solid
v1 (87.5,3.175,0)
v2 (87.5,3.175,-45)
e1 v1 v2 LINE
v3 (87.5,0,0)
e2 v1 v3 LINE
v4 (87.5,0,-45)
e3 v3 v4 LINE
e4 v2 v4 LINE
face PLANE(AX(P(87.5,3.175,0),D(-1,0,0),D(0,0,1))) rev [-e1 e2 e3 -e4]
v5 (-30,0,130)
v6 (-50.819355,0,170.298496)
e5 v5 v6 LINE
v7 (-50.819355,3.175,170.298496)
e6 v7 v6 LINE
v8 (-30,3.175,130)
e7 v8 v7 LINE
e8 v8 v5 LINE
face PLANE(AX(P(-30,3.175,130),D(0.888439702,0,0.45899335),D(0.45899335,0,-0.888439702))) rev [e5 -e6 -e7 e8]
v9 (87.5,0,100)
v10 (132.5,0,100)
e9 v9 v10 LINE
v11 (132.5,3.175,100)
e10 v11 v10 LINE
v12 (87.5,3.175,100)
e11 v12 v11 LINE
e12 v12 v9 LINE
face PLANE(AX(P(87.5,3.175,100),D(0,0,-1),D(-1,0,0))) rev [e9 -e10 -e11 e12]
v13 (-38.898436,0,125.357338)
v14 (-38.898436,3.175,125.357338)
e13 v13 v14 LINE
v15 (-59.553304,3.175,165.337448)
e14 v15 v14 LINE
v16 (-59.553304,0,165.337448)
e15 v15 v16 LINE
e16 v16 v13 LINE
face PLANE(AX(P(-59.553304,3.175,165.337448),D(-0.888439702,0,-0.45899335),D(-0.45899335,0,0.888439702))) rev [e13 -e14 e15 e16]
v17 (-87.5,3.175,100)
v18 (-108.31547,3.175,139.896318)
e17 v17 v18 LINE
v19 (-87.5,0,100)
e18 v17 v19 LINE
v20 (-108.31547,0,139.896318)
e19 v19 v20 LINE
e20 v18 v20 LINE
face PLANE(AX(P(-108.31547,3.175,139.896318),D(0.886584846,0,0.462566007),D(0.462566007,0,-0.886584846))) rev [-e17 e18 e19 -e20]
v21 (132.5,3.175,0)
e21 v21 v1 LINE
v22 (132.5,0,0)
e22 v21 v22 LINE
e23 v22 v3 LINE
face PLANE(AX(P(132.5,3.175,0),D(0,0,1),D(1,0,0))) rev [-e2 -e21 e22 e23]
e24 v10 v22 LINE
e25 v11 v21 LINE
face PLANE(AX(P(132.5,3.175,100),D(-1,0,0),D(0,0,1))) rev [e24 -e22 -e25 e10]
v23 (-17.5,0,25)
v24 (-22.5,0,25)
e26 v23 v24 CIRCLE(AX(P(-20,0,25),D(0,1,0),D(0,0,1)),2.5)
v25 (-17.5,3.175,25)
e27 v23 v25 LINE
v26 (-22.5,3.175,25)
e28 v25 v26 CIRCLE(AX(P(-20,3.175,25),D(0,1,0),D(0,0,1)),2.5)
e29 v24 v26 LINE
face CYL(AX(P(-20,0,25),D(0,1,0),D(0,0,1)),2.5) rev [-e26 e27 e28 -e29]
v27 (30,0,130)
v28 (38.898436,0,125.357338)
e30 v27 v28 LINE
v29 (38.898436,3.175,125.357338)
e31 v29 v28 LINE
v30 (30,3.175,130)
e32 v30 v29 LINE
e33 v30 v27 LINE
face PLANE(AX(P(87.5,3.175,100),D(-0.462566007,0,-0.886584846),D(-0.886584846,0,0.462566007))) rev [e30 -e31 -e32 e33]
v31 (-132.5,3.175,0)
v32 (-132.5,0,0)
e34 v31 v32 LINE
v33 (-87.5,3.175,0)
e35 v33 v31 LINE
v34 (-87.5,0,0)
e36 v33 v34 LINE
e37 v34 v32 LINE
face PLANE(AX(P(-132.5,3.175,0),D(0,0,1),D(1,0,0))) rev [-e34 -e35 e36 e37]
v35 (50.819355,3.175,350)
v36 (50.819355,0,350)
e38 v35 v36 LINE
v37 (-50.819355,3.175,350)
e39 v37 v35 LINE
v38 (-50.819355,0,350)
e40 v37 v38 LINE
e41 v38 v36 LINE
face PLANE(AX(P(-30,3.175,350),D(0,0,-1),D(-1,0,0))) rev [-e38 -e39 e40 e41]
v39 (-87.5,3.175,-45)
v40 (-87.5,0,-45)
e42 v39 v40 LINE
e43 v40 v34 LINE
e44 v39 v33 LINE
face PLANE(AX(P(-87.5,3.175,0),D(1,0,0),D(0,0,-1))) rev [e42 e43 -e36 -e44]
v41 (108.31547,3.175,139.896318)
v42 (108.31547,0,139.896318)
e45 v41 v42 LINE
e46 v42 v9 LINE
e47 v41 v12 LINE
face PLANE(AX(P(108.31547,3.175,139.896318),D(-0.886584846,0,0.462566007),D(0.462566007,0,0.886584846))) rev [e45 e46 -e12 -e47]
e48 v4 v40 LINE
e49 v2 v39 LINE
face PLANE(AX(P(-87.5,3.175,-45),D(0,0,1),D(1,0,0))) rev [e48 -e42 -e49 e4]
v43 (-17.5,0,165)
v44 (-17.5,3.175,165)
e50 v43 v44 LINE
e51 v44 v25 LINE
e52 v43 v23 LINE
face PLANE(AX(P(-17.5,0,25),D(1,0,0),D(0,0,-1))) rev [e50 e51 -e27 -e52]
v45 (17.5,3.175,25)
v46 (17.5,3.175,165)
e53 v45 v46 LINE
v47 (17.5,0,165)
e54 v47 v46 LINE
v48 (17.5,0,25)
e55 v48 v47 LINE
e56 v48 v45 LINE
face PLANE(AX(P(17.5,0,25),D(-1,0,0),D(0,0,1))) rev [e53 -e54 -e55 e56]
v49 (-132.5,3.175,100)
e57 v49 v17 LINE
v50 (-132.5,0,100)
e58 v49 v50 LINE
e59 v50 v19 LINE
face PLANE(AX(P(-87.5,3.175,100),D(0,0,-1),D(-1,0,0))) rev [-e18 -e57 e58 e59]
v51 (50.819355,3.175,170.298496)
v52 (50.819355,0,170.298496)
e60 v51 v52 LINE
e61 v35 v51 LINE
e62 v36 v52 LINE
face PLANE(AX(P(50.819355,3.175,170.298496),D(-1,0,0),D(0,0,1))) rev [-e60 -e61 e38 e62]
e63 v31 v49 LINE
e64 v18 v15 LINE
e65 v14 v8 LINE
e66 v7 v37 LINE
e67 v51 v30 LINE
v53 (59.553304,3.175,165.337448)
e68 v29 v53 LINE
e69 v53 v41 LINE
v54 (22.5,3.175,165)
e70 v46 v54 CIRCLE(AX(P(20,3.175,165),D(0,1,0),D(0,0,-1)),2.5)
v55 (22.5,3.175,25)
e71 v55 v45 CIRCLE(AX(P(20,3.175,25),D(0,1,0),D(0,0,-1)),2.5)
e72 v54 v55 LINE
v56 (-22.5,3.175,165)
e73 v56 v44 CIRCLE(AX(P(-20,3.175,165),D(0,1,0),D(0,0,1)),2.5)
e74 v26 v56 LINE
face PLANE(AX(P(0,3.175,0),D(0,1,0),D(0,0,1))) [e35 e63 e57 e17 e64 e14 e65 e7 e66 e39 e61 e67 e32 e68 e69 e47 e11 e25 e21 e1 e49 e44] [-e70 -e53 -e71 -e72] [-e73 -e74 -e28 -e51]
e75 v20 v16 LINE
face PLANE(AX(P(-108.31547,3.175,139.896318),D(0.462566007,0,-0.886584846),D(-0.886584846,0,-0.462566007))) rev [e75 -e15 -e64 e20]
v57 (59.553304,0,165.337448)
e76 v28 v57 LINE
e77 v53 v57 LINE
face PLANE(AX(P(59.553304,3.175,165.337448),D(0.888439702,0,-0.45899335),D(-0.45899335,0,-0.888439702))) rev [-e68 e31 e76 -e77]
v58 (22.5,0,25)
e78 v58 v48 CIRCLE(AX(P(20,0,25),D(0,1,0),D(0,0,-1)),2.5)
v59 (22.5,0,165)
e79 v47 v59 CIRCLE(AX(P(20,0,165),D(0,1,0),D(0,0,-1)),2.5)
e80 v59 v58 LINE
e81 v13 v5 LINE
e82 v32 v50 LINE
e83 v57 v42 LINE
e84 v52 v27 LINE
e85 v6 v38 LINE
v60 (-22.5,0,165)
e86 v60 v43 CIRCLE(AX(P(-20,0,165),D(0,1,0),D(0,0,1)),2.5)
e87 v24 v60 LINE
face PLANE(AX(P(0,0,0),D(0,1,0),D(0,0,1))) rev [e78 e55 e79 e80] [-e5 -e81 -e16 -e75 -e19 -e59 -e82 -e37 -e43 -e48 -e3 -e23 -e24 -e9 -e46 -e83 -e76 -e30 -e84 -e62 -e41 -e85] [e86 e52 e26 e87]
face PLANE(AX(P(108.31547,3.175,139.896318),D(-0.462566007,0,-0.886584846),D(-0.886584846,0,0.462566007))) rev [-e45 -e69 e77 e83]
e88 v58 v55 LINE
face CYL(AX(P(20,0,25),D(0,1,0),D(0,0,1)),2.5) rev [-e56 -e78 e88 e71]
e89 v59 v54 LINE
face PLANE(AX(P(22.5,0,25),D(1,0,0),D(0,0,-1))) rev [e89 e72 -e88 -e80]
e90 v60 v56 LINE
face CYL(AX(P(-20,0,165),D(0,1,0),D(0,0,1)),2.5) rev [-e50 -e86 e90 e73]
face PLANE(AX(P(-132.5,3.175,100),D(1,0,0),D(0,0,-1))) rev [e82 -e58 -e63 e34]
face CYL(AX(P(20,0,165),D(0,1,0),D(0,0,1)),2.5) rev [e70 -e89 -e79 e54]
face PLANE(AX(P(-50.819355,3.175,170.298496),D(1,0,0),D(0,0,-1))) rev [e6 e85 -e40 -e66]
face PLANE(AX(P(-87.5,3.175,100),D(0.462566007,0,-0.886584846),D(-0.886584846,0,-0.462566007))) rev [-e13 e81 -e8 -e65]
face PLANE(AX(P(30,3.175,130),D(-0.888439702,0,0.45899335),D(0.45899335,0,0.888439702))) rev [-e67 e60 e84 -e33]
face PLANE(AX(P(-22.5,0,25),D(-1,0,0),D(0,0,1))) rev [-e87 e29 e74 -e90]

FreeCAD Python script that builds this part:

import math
import FreeCAD as App
import Part
import Sketcher

V = App.Vector

doc = App.newDocument("Part")
params = doc.addObject("Spreadsheet::Sheet", "Params")
for row, (alias, value) in enumerate([
    ("sketch1_width", "175 mm"),
    ("sketch1_width2", "60 mm"),
    ("sketch1_height", "100 mm"),
    ("sketch1_height2", "220 mm"),
    ("pad1_length", "3.175 mm"),
    ("sketch2_width", "175 mm"),
    ("sketch2_height", "45 mm"),
    ("sketch2_height2", "220 mm"),
    ("sketch2_length", "45 mm"),
    ("sketch2_length2", "55 mm"),
    ("pad2_length", "3.175 mm"),
    ("sketch3_width", "45 mm"),
    ("sketch3_height", "100 mm"),
    ("pad3_length", "3.175 mm"),
    ("sketch4_radius", "2.5 mm"),
    ("sketch4_height", "140 mm"),
], start=1):
    params.set(f"A{row}", alias)
    params.set(f"B{row}", "=" + value)
    params.setAlias(f"B{row}", alias)

body = doc.addObject("PartDesign::Body", "Body")

sketch1 = doc.addObject("Sketcher::SketchObject", "Sketch")
body.addObject(sketch1)
sketch1.AttachmentSupport = (doc.XZ_Plane, [""])
sketch1.MapMode = "FlatFace"
sketch1.addGeometry([
    Part.LineSegment(V(88, 0, 0), V(-88, 0, 0)),
    Part.LineSegment(V(-88, 0, 0), V(-88, 100, 0)),
    Part.LineSegment(V(-88, 100, 0), V(-30, 130, 0)),
    Part.LineSegment(V(-30, 130, 0), V(-30, 350, 0)),
    Part.LineSegment(V(-30, 350, 0), V(30, 350, 0)),
    Part.LineSegment(V(30, 350, 0), V(30, 130, 0)),
    Part.LineSegment(V(30, 130, 0), V(88, 100, 0)),
    Part.LineSegment(V(88, 100, 0), V(88, 0, 0)),
], False)
sketch1.addConstraint([
    Sketcher.Constraint("Coincident", 0, 2, 1, 1),
    Sketcher.Constraint("Coincident", 1, 2, 2, 1),
    Sketcher.Constraint("Coincident", 2, 2, 3, 1),
    Sketcher.Constraint("Coincident", 3, 2, 4, 1),
    Sketcher.Constraint("Coincident", 4, 2, 5, 1),
    Sketcher.Constraint("Coincident", 5, 2, 6, 1),
    Sketcher.Constraint("Coincident", 6, 2, 7, 1),
    Sketcher.Constraint("Coincident", 7, 2, 0, 1),
    Sketcher.Constraint("Horizontal", 0),
    Sketcher.Constraint("Vertical", 1),
    Sketcher.Constraint("Vertical", 3),
    Sketcher.Constraint("Horizontal", 4),
    Sketcher.Constraint("Vertical", 5),
    Sketcher.Constraint("Vertical", 7),
    Sketcher.Constraint("Symmetric", 0, 2, 7, 2, -1, 1),
    Sketcher.Constraint("Symmetric", 2, 2, 5, 2, -2),
    Sketcher.Constraint("Horizontal", 1, 2, 6, 2),
    Sketcher.Constraint("DistanceX", 0, 2, 0, 1, 175.0),
    Sketcher.Constraint("DistanceX", 4, 1, 4, 2, 60.0),
    Sketcher.Constraint("DistanceY", 1, 1, 1, 2, 100.0),
    Sketcher.Constraint("DistanceY", 3, 1, 3, 2, 220.0),
    Sketcher.Constraint("DistanceY", -1, 1, 2, 2, 130.0),
])
sketch1.setExpression("Constraints[17]", "Params.sketch1_width")
sketch1.setExpression("Constraints[18]", "Params.sketch1_width2")
sketch1.setExpression("Constraints[19]", "Params.sketch1_height")
sketch1.setExpression("Constraints[20]", "Params.sketch1_height2")
pad1 = doc.addObject("PartDesign::Pad", "Pad")
body.addObject(pad1)
pad1.Profile = sketch1
pad1.setExpression("Length", "Params.pad1_length")
pad1.Reversed = True

sketch2 = doc.addObject("Sketcher::SketchObject", "Sketch001")
body.addObject(sketch2)
sketch2.AttachmentSupport = (doc.XZ_Plane, [""])
sketch2.MapMode = "FlatFace"
sketch2.addGeometry([
    Part.LineSegment(V(-88, -45, 0), V(-88, 0, 0)),
    Part.LineSegment(V(-88, 0, 0), V(88, 0, 0)),
    Part.LineSegment(V(88, 0, 0), V(88, -45, 0)),
    Part.LineSegment(V(88, -45, 0), V(-88, -45, 0)),
    Part.LineSegment(V(-88, 100, 0), V(-108, 140, 0)),
    Part.LineSegment(V(-108, 140, 0), V(-60, 165, 0)),
    Part.LineSegment(V(-60, 165, 0), V(-39, 125, 0)),
    Part.LineSegment(V(-39, 125, 0), V(-88, 100, 0)),
    Part.LineSegment(V(60, 165, 0), V(108, 140, 0)),
    Part.LineSegment(V(108, 140, 0), V(88, 100, 0)),
    Part.LineSegment(V(88, 100, 0), V(39, 125, 0)),
    Part.LineSegment(V(39, 125, 0), V(60, 165, 0)),
    Part.LineSegment(V(-30, 130, 0), V(-51, 170, 0)),
    Part.LineSegment(V(-51, 170, 0), V(-51, 350, 0)),
    Part.LineSegment(V(-51, 350, 0), V(-30, 350, 0)),
    Part.LineSegment(V(-30, 350, 0), V(-30, 130, 0)),
    Part.LineSegment(V(51, 350, 0), V(51, 170, 0)),
    Part.LineSegment(V(51, 170, 0), V(30, 130, 0)),
    Part.LineSegment(V(30, 130, 0), V(30, 350, 0)),
    Part.LineSegment(V(30, 350, 0), V(51, 350, 0)),
], False)
sketch2.addConstraint([
    Sketcher.Constraint("Coincident", 0, 2, 1, 1),
    Sketcher.Constraint("Coincident", 1, 2, 2, 1),
    Sketcher.Constraint("Coincident", 2, 2, 3, 1),
    Sketcher.Constraint("Coincident", 3, 2, 0, 1),
    Sketcher.Constraint("Coincident", 4, 2, 5, 1),
    Sketcher.Constraint("Coincident", 5, 2, 6, 1),
    Sketcher.Constraint("Coincident", 6, 2, 7, 1),
    Sketcher.Constraint("Coincident", 7, 2, 4, 1),
    Sketcher.Constraint("Coincident", 8, 2, 9, 1),
    Sketcher.Constraint("Coincident", 9, 2, 10, 1),
    Sketcher.Constraint("Coincident", 10, 2, 11, 1),
    Sketcher.Constraint("Coincident", 11, 2, 8, 1),
    Sketcher.Constraint("Coincident", 12, 2, 13, 1),
    Sketcher.Constraint("Coincident", 13, 2, 14, 1),
    Sketcher.Constraint("Coincident", 14, 2, 15, 1),
    Sketcher.Constraint("Coincident", 15, 2, 12, 1),
    Sketcher.Constraint("Coincident", 16, 2, 17, 1),
    Sketcher.Constraint("Coincident", 17, 2, 18, 1),
    Sketcher.Constraint("Coincident", 18, 2, 19, 1),
    Sketcher.Constraint("Coincident", 19, 2, 16, 1),
    Sketcher.Constraint("Vertical", 0),
    Sketcher.Constraint("Horizontal", 1),
    Sketcher.Constraint("Vertical", 2),
    Sketcher.Constraint("Horizontal", 3),
    Sketcher.Constraint("Vertical", 13),
    Sketcher.Constraint("Horizontal", 14),
    Sketcher.Constraint("Vertical", 15),
    Sketcher.Constraint("Vertical", 16),
    Sketcher.Constraint("Vertical", 18),
    Sketcher.Constraint("Horizontal", 19),
    Sketcher.Constraint("Symmetric", 0, 2, 1, 2, -1, 1),
    Sketcher.Constraint("Symmetric", 4, 2, 8, 2, -2),
    Sketcher.Constraint("Symmetric", 7, 2, 9, 2, -2),
    Sketcher.Constraint("Symmetric", 6, 2, 10, 2, -2),
    Sketcher.Constraint("Symmetric", 5, 2, 11, 2, -2),
    Sketcher.Constraint("Symmetric", 12, 2, 16, 2, -2),
    Sketcher.Constraint("Symmetric", 15, 2, 17, 2, -2),
    Sketcher.Constraint("Perpendicular", 4, 5),
    Sketcher.Constraint("Parallel", 6, 12),
    Sketcher.Constraint("Horizontal", 14, 2, 18, 2),
    Sketcher.Constraint("Vertical", 3, 2, 7, 2),
    Sketcher.Constraint("Equal", 11, 12),
    Sketcher.Constraint("DistanceX", 1, 1, 1, 2, 175.0),
    Sketcher.Constraint("DistanceY", 0, 1, 0, 2, 45.0),
    Sketcher.Constraint("DistanceY", 15, 2, 15, 1, 220.0),
    Sketcher.Constraint("Distance", 4, 45.0),
    Sketcher.Constraint("Distance", 5, 55.0),
    Sketcher.Constraint("DistanceY", -1, 1, 7, 2, 100.0),
    Sketcher.Constraint("DistanceY", -1, 1, 13, 2, 350.0),
    Sketcher.Constraint("DistanceX", 14, 2, -1, 1, 30.0),
    Sketcher.Constraint("Distance", 6, 45.35873),
    Sketcher.Constraint("Distance", 7, 54.818582),
    Sketcher.Constraint("DistanceX", 14, 1, 14, 2, 20.819355),
])
sketch2.setExpression("Constraints[42]", "Params.sketch2_width")
sketch2.setExpression("Constraints[43]", "Params.sketch2_height")
sketch2.setExpression("Constraints[44]", "Params.sketch2_height2")
sketch2.setExpression("Constraints[45]", "Params.sketch2_length")
sketch2.setExpression("Constraints[46]", "Params.sketch2_length2")
pad2 = doc.addObject("PartDesign::Pad", "Pad001")
body.addObject(pad2)
pad2.Profile = sketch2
pad2.setExpression("Length", "Params.pad2_length")
pad2.Reversed = True

sketch3 = doc.addObject("Sketcher::SketchObject", "Sketch002")
body.addObject(sketch3)
sketch3.AttachmentSupport = (doc.XZ_Plane, [""])
sketch3.MapMode = "FlatFace"
sketch3.addGeometry([
    Part.LineSegment(V(-132, 0, 0), V(-132, 100, 0)),
    Part.LineSegment(V(-132, 100, 0), V(-88, 100, 0)),
    Part.LineSegment(V(-88, 100, 0), V(-88, 0, 0)),
    Part.LineSegment(V(-88, 0, 0), V(-132, 0, 0)),
    Part.LineSegment(V(88, 0, 0), V(88, 100, 0)),
    Part.LineSegment(V(88, 100, 0), V(132, 100, 0)),
    Part.LineSegment(V(132, 100, 0), V(132, 0, 0)),
    Part.LineSegment(V(132, 0, 0), V(88, 0, 0)),
], False)
sketch3.addConstraint([
    Sketcher.Constraint("Coincident", 0, 2, 1, 1),
    Sketcher.Constraint("Coincident", 1, 2, 2, 1),
    Sketcher.Constraint("Coincident", 2, 2, 3, 1),
    Sketcher.Constraint("Coincident", 3, 2, 0, 1),
    Sketcher.Constraint("Coincident", 4, 2, 5, 1),
    Sketcher.Constraint("Coincident", 5, 2, 6, 1),
    Sketcher.Constraint("Coincident", 6, 2, 7, 1),
    Sketcher.Constraint("Coincident", 7, 2, 4, 1),
    Sketcher.Constraint("Vertical", 0),
    Sketcher.Constraint("Horizontal", 1),
    Sketcher.Constraint("Vertical", 2),
    Sketcher.Constraint("Horizontal", 3),
    Sketcher.Constraint("Vertical", 4),
    Sketcher.Constraint("Horizontal", 5),
    Sketcher.Constraint("Vertical", 6),
    Sketcher.Constraint("Horizontal", 7),
    Sketcher.Constraint("Symmetric", 3, 2, 6, 2, -1, 1),
    Sketcher.Constraint("Symmetric", 1, 2, 4, 2, -2),
    Sketcher.Constraint("PointOnObject", 2, 2, -1),
    Sketcher.Constraint("DistanceX", 1, 1, 1, 2, 45.0),
    Sketcher.Constraint("DistanceY", 0, 1, 0, 2, 100.0),
    Sketcher.Constraint("DistanceX", 1, 2, 4, 2, 175.0),
])
sketch3.setExpression("Constraints[19]", "Params.sketch3_width")
sketch3.setExpression("Constraints[20]", "Params.sketch3_height")
pad3 = doc.addObject("PartDesign::Pad", "Pad002")
body.addObject(pad3)
pad3.Profile = sketch3
pad3.setExpression("Length", "Params.pad3_length")
pad3.Reversed = True

sketch4 = doc.addObject("Sketcher::SketchObject", "Sketch003")
body.addObject(sketch4)
sketch4.AttachmentSupport = (doc.XZ_Plane, [""])
sketch4.MapMode = "FlatFace"
sketch4.AttachmentOffset = App.Placement(V(0, 0, -3.175), App.Rotation())
sketch4.addGeometry([
    Part.LineSegment(V(-17.5, 165, 0), V(-17.5, 25, 0)),
    Part.ArcOfCircle(Part.Circle(V(-20, 25, 0), V(0, 0, 1), 2.5), math.radians(180), math.radians(360)),
    Part.LineSegment(V(-22.5, 25, 0), V(-22.5, 165, 0)),
    Part.ArcOfCircle(Part.Circle(V(-20, 165, 0), V(0, 0, 1), 2.5), math.radians(0), math.radians(180)),
    Part.LineSegment(V(17.5, 25, 0), V(17.5, 165, 0)),
    Part.ArcOfCircle(Part.Circle(V(20, 165, 0), V(0, 0, 1), 2.5), math.radians(0), math.radians(180)),
    Part.LineSegment(V(22.5, 165, 0), V(22.5, 25, 0)),
    Part.ArcOfCircle(Part.Circle(V(20, 25, 0), V(0, 0, 1), 2.5), math.radians(180), math.radians(360)),
], False)
sketch4.addConstraint([
    Sketcher.Constraint("Tangent", 0, 2, 1, 2),
    Sketcher.Constraint("Tangent", 1, 1, 2, 1),
    Sketcher.Constraint("Tangent", 2, 2, 3, 2),
    Sketcher.Constraint("Tangent", 3, 1, 0, 1),
    Sketcher.Constraint("Tangent", 4, 2, 5, 2),
    Sketcher.Constraint("Tangent", 5, 1, 6, 1),
    Sketcher.Constraint("Tangent", 6, 2, 7, 2),
    Sketcher.Constraint("Tangent", 7, 1, 4, 1),
    Sketcher.Constraint("Vertical", 0),
    Sketcher.Constraint("Vertical", 2),
    Sketcher.Constraint("Vertical", 4),
    Sketcher.Constraint("Vertical", 6),
    Sketcher.Constraint("Equal", 3, 5),
    Sketcher.Constraint("Symmetric", 3, 3, 5, 3, -2),
    Sketcher.Constraint("Horizontal", 1, 3, 7, 3),
    Sketcher.Constraint("Radius", 1, 2.5),
    Sketcher.Constraint("DistanceY", 0, 2, 0, 1, 140.0),
    Sketcher.Constraint("DistanceX", 1, 3, -1, 1, 20.0),
    Sketcher.Constraint("DistanceY", -1, 1, 1, 3, 25.0),
])
sketch4.setExpression("Constraints[15]", "Params.sketch4_radius")
sketch4.setExpression("Constraints[16]", "Params.sketch4_height")
pocket1 = doc.addObject("PartDesign::Pocket", "Pocket")
body.addObject(pocket1)
pocket1.Profile = sketch4
pocket1.Type = "ThroughAll"
pocket1.Reversed = True

doc.recompute()
